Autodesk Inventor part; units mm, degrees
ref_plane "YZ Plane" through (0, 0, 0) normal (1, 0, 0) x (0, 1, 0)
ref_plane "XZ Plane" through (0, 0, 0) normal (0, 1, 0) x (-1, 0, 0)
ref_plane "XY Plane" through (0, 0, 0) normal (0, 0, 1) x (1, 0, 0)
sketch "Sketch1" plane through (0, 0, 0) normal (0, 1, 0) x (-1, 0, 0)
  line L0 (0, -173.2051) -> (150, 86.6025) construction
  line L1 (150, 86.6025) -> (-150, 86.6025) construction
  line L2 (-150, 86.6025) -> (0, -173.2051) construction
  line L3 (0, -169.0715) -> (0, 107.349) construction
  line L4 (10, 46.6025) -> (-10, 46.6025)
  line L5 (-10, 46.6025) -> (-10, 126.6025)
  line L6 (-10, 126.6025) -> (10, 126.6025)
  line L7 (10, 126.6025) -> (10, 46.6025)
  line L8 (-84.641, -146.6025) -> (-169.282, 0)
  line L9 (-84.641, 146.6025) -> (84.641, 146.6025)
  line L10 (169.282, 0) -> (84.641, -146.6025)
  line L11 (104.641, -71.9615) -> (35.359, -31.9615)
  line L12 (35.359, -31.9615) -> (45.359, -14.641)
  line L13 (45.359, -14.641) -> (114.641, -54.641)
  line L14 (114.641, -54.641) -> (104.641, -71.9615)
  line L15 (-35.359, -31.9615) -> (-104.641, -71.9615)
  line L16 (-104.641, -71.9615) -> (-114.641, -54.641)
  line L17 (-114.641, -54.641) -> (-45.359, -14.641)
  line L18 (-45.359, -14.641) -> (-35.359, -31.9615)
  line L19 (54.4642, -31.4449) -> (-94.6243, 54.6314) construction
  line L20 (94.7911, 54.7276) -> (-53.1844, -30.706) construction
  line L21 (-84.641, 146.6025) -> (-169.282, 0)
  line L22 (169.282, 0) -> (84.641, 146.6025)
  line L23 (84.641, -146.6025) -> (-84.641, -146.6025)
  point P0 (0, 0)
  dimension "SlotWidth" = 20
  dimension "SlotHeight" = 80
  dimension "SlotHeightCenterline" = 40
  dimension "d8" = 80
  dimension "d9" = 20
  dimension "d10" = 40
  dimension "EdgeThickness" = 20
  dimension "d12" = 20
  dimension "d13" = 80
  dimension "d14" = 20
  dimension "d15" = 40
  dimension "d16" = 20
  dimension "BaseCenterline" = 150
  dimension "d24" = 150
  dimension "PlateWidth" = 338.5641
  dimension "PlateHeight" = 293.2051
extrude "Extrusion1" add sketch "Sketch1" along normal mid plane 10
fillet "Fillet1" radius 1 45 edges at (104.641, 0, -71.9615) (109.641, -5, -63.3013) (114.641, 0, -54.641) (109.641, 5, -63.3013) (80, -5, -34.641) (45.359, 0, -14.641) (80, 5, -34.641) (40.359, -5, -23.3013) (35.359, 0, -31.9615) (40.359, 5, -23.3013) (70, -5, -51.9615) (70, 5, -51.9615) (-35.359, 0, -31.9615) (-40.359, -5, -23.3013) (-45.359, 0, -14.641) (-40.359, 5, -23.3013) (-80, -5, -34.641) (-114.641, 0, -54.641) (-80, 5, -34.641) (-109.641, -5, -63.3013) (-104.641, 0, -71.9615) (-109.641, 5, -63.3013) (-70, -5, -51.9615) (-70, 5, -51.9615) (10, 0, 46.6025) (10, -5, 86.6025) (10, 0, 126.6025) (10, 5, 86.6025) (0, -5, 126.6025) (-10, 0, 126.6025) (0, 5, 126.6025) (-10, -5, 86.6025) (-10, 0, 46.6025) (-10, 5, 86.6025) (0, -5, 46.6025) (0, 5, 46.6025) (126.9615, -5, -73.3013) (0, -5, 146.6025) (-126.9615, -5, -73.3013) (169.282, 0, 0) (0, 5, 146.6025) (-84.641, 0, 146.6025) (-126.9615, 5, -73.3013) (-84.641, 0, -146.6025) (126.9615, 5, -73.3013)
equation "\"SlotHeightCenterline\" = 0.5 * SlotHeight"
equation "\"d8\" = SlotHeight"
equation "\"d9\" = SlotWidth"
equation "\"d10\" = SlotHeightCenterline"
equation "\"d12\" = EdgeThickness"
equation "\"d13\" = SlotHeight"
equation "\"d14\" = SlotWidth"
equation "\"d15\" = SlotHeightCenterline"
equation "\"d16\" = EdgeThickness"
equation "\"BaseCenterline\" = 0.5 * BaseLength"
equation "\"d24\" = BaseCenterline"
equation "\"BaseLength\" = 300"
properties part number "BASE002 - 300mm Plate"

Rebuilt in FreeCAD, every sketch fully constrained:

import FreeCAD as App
import Part
import Sketcher
Q = App.Units.Quantity


def edges_at(feature, points):
    """Names of the edges that pass closest to the given points."""
    edges = feature.Shape.Edges
    near = lambda p: min(range(len(edges)), key=lambda i: edges[i].distToShape(Part.Vertex(*p))[0])
    return sorted({f"Edge{near(p) + 1}" for p in points})


def add_polygon(sketch, points):
    """Adds a closed chain of lines whose ends are joined by coincident constraints."""
    first, n = sketch.GeometryCount, len(points)
    for a, b in zip(points, points[1:] + points[:1]):
        sketch.addGeometry(Part.LineSegment(App.Vector(*a, 0), App.Vector(*b, 0)), False)
    for i in range(n):
        sketch.addConstraint(Sketcher.Constraint("Coincident", first + i, 2, first + (i + 1) % n, 1))

doc = App.newDocument("Part")
params = doc.addObject("Spreadsheet::Sheet", "Params")
for row, (alias, value) in enumerate([
    ("sketch1_width", "20 mm"),
    ("sketch1_height", "80 mm"),
    ("sketch1_length", "20 mm"),
    ("sketch1_length2", "80 mm"),
    ("pad1_length", "10 mm"),
    ("fillet_radius", "1 mm"),
], start=1):
    params.set(f"A{row}", alias)
    params.set(f"B{row}", "=" + value)
    params.setAlias(f"B{row}", alias)

body = doc.addObject("PartDesign::Body", "Body")

# Sketch on XZ plane
sketch1 = body.newObject("Sketcher::SketchObject", "Sketch")
sketch1.AttachmentSupport = (doc.getObject("XZ_Plane"), [""])
sketch1.MapMode = "FlatFace"
add_polygon(sketch1, [(169, 0), (85, -147), (-85, -147), (-169, 0), (-85, 147), (85, 147)])  # lines 0-5
add_polygon(sketch1, [(45, -15), (35, -32), (105, -72), (115, -55)])  # lines 6-9
add_polygon(sketch1, [(-115, -55), (-105, -72), (-35, -32), (-45, -15)])  # lines 10-13
add_polygon(sketch1, [(-10, 127), (-10, 47), (10, 47), (10, 127)])  # lines 14-17
sketch1.addConstraint([
    Sketcher.Constraint("Horizontal", 1),
    Sketcher.Constraint("Horizontal", 4),
    Sketcher.Constraint("Vertical", 14),
    Sketcher.Constraint("Horizontal", 15),
    Sketcher.Constraint("Vertical", 16),
    Sketcher.Constraint("Horizontal", 17),
    Sketcher.Constraint("Symmetric", 0, 2, 3, 2, -1, 1),
    Sketcher.Constraint("Symmetric", 2, 2, 5, 2, -1, 1),
    Sketcher.Constraint("Symmetric", 7, 2, 10, 2, -2),
    Sketcher.Constraint("Symmetric", 6, 2, 11, 2, -2),
    Sketcher.Constraint("Symmetric", 9, 2, 12, 2, -2),
    Sketcher.Constraint("Symmetric", 8, 2, 13, 2, -2),
    Sketcher.Constraint("PointOnObject", 2, 2, -1),
    Sketcher.Constraint("Parallel", 2, 5),
    Sketcher.Constraint("Parallel", 3, 6),
    Sketcher.Constraint("Perpendicular", 6, 7),
    Sketcher.Constraint("Perpendicular", 7, 8),
    Sketcher.Constraint("Perpendicular", 8, 9),
    Sketcher.Constraint("Parallel", 5, 10),
    Sketcher.Constraint("DistanceX", 15, 1, 15, 2, Q("20 mm")),
    Sketcher.Constraint("DistanceY", 14, 2, 14, 1, Q("80 mm")),
    Sketcher.Constraint("Angle", 9, Q("150 deg")),
    Sketcher.Constraint("Distance", 6, Q("20 mm")),
    Sketcher.Constraint("Distance", 7, Q("80 mm")),
    Sketcher.Constraint("DistanceX", 0, 2, 7, 2, Q("20 mm")),
    Sketcher.Constraint("DistanceX", 10, 2, 9, 2, Q("150 mm")),
    Sketcher.Constraint("DistanceY", 16, 2, 4, 2, Q("20 mm")),
    Sketcher.Constraint("DistanceX", 14, 2, -1, 1, Q("10 mm")),
    Sketcher.Constraint("DistanceY", 1, 2, 3, 2, Q("293.205 mm")),
    Sketcher.Constraint("DistanceY", 8, 2, -1, 1, Q("54.641 mm")),
])
sketch1.setExpression("Constraints[37]", "Params.sketch1_width")
sketch1.setExpression("Constraints[38]", "Params.sketch1_height")
sketch1.setExpression("Constraints[40]", "Params.sketch1_length")
sketch1.setExpression("Constraints[41]", "Params.sketch1_length2")
pad1 = body.newObject("PartDesign::Pad", "Pad")
pad1.Profile = sketch1
pad1.setExpression("Length", "Params.pad1_length")
pad1.Midplane = True
doc.recompute()

fillet = body.newObject("PartDesign::Fillet", "Fillet")
fillet.Base = (pad1, edges_at(pad1, [
    (104.641, 0, -71.962),
    (109.641, -5, -63.301),
    (114.641, 0, -54.641),
    (109.641, 5, -63.301),
    (80, -5, -34.641),
    (45.359, 0, -14.641),
    (80, 5, -34.641),
    (40.359, -5, -23.301),
    (35.359, 0, -31.962),
    (40.359, 5, -23.301),
    (70, -5, -51.962),
    (70, 5, -51.962),
    (-35.359, 0, -31.962),
    (-40.359, -5, -23.301),
    (-45.359, 0, -14.641),
    (-40.359, 5, -23.301),
    (-80, -5, -34.641),
    (-114.641, 0, -54.641),
    (-80, 5, -34.641),
    (-109.641, -5, -63.301),
    (-104.641, 0, -71.962),
    (-109.641, 5, -63.301),
    (-70, -5, -51.962),
    (-70, 5, -51.962),
    (10, 0, 46.602),
    (10, -5, 86.603),
    (10, 0, 126.603),
    (10, 5, 86.603),
    (0, -5, 126.603),
    (-10, 0, 126.603),
    (0, 5, 126.603),
    (-10, -5, 86.603),
    (-10, 0, 46.602),
    (-10, 5, 86.603),
    (0, -5, 46.602),
    (0, 5, 46.602),
    (126.962, -5, -73.301),
    (0, -5, 146.602),
    (-126.962, -5, -73.301),
    (169.282, 0, 0),
    (0, 5, 146.602),
    (-84.641, 0, 146.602),
    (-126.962, 5, -73.301),
    (-84.641, 0, -146.602),
    (126.962, 5, -73.301),
]))
fillet.setExpression("Radius", "Params.fillet_radius")

doc.recompute()
